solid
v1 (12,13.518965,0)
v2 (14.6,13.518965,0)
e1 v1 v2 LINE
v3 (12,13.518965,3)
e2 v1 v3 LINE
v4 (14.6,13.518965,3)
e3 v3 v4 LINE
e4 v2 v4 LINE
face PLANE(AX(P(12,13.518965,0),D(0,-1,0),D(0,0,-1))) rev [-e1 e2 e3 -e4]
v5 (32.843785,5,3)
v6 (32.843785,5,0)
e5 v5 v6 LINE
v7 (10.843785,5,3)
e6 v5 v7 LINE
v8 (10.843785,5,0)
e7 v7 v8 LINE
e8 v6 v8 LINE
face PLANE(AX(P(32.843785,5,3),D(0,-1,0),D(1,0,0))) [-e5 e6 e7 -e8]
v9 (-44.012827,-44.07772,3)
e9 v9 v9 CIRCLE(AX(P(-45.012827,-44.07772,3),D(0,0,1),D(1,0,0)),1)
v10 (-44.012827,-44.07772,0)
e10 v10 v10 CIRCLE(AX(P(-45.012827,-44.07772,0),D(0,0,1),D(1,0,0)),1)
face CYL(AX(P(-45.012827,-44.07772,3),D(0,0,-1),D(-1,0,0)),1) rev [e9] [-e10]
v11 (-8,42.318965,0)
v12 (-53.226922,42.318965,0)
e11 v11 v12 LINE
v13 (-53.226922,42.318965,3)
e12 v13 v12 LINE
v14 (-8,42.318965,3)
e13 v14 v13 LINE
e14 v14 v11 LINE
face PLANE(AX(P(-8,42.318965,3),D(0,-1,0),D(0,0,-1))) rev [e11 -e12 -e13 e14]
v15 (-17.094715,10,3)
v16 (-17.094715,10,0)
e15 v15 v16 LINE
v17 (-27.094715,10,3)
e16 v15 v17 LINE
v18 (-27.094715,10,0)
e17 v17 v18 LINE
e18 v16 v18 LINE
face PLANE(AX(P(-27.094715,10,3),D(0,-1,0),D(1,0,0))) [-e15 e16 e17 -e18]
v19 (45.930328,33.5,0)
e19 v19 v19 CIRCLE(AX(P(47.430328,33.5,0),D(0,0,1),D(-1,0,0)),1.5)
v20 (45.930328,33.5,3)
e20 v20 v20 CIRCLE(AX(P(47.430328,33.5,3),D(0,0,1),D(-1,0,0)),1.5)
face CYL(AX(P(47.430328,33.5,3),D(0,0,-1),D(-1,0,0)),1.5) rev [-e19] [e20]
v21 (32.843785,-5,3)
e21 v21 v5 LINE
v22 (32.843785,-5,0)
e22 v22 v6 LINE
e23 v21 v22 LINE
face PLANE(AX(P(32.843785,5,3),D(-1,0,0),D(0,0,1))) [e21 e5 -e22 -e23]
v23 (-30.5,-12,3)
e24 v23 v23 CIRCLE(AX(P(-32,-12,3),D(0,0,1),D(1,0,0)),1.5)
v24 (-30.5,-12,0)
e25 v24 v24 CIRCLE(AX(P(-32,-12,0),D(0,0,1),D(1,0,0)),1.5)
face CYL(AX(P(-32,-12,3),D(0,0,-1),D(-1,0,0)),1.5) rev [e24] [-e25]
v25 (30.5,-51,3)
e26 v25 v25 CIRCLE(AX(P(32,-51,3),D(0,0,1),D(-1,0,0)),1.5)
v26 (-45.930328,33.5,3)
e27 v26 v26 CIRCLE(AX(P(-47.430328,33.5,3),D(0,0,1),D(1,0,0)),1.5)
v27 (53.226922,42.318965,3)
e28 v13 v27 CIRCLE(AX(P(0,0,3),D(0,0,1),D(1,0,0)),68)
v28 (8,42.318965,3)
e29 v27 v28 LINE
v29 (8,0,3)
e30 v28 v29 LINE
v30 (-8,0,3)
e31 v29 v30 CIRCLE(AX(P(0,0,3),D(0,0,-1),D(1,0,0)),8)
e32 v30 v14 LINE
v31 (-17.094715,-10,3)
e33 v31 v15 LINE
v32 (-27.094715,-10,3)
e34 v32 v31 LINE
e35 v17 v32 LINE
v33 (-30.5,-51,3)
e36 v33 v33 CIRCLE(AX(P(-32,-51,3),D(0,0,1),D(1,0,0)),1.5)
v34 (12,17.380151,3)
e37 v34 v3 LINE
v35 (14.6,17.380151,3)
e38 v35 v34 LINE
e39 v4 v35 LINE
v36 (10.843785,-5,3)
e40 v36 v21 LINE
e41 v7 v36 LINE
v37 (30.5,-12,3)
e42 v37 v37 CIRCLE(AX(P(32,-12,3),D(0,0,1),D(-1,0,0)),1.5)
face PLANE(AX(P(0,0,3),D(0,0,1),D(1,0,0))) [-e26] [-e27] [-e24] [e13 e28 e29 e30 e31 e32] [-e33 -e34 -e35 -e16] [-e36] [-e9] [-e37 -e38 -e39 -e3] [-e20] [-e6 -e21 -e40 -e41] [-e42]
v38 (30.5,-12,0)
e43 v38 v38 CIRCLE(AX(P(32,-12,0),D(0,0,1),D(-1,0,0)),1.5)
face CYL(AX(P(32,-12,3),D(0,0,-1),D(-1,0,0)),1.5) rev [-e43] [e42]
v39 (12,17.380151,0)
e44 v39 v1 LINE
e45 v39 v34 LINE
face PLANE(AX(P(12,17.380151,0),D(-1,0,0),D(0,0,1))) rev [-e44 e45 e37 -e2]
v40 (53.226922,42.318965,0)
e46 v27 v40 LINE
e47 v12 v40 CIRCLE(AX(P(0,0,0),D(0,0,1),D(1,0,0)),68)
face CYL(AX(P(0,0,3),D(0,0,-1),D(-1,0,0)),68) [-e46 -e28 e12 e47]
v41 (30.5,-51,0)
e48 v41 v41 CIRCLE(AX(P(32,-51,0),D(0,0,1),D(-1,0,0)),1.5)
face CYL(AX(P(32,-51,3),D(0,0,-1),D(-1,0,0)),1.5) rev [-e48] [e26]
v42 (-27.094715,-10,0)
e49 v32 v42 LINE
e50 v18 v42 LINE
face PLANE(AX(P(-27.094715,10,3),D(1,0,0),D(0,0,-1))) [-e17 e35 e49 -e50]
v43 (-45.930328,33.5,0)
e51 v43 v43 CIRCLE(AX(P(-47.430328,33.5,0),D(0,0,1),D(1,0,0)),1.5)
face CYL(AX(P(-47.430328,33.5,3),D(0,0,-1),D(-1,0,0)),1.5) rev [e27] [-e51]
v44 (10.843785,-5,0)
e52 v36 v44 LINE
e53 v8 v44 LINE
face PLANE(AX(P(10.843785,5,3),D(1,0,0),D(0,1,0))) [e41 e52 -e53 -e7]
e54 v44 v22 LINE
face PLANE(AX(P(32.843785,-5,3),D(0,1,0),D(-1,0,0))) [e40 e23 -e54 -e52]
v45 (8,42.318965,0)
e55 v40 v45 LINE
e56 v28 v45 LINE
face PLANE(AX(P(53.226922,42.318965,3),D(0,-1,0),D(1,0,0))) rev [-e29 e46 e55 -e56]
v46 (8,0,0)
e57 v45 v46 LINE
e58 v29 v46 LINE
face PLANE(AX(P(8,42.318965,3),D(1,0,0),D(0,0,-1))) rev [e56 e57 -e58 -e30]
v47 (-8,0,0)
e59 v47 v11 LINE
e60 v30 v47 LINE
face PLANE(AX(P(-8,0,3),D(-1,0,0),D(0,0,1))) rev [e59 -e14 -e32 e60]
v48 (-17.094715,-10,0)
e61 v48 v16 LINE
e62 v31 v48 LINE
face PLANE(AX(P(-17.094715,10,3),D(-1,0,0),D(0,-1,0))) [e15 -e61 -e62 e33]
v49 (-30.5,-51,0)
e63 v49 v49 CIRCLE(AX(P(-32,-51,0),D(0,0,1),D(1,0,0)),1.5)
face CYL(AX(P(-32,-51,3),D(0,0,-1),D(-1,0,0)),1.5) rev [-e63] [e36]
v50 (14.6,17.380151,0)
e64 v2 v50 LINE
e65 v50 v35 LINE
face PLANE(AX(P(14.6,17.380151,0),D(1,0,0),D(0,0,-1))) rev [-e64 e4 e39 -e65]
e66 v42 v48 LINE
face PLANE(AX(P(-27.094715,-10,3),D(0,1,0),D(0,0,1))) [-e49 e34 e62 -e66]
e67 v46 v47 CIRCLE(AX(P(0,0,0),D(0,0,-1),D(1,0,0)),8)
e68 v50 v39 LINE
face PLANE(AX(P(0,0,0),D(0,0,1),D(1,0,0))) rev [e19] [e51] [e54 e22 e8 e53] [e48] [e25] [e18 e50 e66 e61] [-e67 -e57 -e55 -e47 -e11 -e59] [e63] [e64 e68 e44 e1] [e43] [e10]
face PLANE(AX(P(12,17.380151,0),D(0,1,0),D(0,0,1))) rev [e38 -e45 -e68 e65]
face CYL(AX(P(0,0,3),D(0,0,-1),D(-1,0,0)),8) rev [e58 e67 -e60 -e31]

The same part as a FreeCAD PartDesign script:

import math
import FreeCAD as App
import Part
import Sketcher
Q = App.Units.Quantity

doc = App.newDocument("Part")
body = doc.addObject("PartDesign::Body", "Body")

sketch1 = body.newObject("Sketcher::SketchObject", "Sketch")
sketch1.AttachmentSupport = (doc.getObject("XY_Plane"), [""])
sketch1.MapMode = "FlatFace"
sketch1.addGeometry([
    Part.LineSegment(App.Vector(53.226922, 42.318965, 0), App.Vector(8, 42.318965, 0)),
    Part.LineSegment(App.Vector(8, 42.318965, 0), App.Vector(8, 0, 0)),
    Part.ArcOfCircle(Part.Circle(App.Vector(0, 0, 0), App.Vector(0, 0, 1), 8), math.radians(180), math.radians(360)),
    Part.LineSegment(App.Vector(-8, 0, 0), App.Vector(-8, 42.318965, 0)),
    Part.LineSegment(App.Vector(-8, 42.318965, 0), App.Vector(-53.226922, 42.318965, 0)),
    Part.ArcOfCircle(Part.Circle(App.Vector(0, 0, 0), App.Vector(0, 0, 1), 68), math.radians(141.512951), math.radians(398.487049)),
    Part.Circle(App.Vector(-45.012827, -44.07772, 0), App.Vector(0, 0, 1), 1),
    Part.Circle(App.Vector(-32, -51, 0), App.Vector(0, 0, 1), 1.5),
    Part.Circle(App.Vector(-32, -12, 0), App.Vector(0, 0, 1), 1.5),
    Part.Circle(App.Vector(32, -51, 0), App.Vector(0, 0, 1), 1.5),
    Part.Circle(App.Vector(32, -12, 0), App.Vector(0, 0, 1), 1.5),
    Part.LineSegment(App.Vector(-17.094715, -10, 0), App.Vector(-27.094715, -10, 0)),
    Part.LineSegment(App.Vector(-27.094715, -10, 0), App.Vector(-27.094715, 10, 0)),
    Part.LineSegment(App.Vector(-27.094715, 10, 0), App.Vector(-17.094715, 10, 0)),
    Part.LineSegment(App.Vector(-17.094715, 10, 0), App.Vector(-17.094715, -10, 0)),
    Part.Circle(App.Vector(-47.430328, 33.5, 0), App.Vector(0, 0, 1), 1.5),
    Part.LineSegment(App.Vector(32.843785, -5, 0), App.Vector(10.843785, -5, 0)),
    Part.LineSegment(App.Vector(10.843785, -5, 0), App.Vector(10.843785, 5, 0)),
    Part.LineSegment(App.Vector(10.843785, 5, 0), App.Vector(32.843785, 5, 0)),
    Part.LineSegment(App.Vector(32.843785, 5, 0), App.Vector(32.843785, -5, 0)),
    Part.Circle(App.Vector(47.430328, 33.5, 0), App.Vector(0, 0, 1), 1.5),
], False)
sketch1.addConstraint([
    Sketcher.Constraint("Coincident", 0, 2, 1, 1),
    Sketcher.Constraint("Tangent", 1, 2, 2, 2),
    Sketcher.Constraint("Tangent", 2, 1, 3, 1),
    Sketcher.Constraint("Coincident", 3, 2, 4, 1),
    Sketcher.Constraint("Coincident", 4, 2, 5, 1),
    Sketcher.Constraint("Coincident", 5, 2, 0, 1),
    Sketcher.Constraint("Coincident", 11, 2, 12, 1),
    Sketcher.Constraint("Coincident", 12, 2, 13, 1),
    Sketcher.Constraint("Coincident", 13, 2, 14, 1),
    Sketcher.Constraint("Coincident", 14, 2, 11, 1),
    Sketcher.Constraint("Coincident", 16, 2, 17, 1),
    Sketcher.Constraint("Coincident", 17, 2, 18, 1),
    Sketcher.Constraint("Coincident", 18, 2, 19, 1),
    Sketcher.Constraint("Coincident", 19, 2, 16, 1),
    Sketcher.Constraint("Horizontal", 0),
    Sketcher.Constraint("Vertical", 1),
    Sketcher.Constraint("Vertical", 3),
    Sketcher.Constraint("Horizontal", 4),
    Sketcher.Constraint("Horizontal", 11),
    Sketcher.Constraint("Vertical", 12),
    Sketcher.Constraint("Horizontal", 13),
    Sketcher.Constraint("Vertical", 14),
    Sketcher.Constraint("Horizontal", 16),
    Sketcher.Constraint("Vertical", 17),
    Sketcher.Constraint("Horizontal", 18),
    Sketcher.Constraint("Vertical", 19),
    Sketcher.Constraint("Coincident", 2, 3, -1, 1),
    Sketcher.Constraint("Coincident", 5, 3, -1, 1),
    Sketcher.Constraint("Equal", 7, 8),
    Sketcher.Constraint("Equal", 8, 9),
    Sketcher.Constraint("Equal", 9, 10),
    Sketcher.Constraint("Equal", 10, 15),
    Sketcher.Constraint("Equal", 15, 20),
    Sketcher.Constraint("Symmetric", 7, 3, 9, 3, -2),
    Sketcher.Constraint("Symmetric", 8, 3, 10, 3, -2),
    Sketcher.Constraint("Symmetric", 15, 3, 20, 3, -2),
    Sketcher.Constraint("Horizontal", 0, 2, 3, 2),
    Sketcher.Constraint("Vertical", 7, 3, 8, 3),
    Sketcher.Constraint("Equal", 13, 17),
    Sketcher.Constraint("Diameter", 6, Q("2 mm")),
    Sketcher.Constraint("Diameter", 7, Q("3 mm")),
    Sketcher.Constraint("Radius", 2, Q("8 mm")),
    Sketcher.Constraint("Radius", 5, Q("68 mm")),
    Sketcher.Constraint("DistanceX", 11, 2, 11, 1, Q("10 mm")),
    Sketcher.Constraint("DistanceX", 16, 2, 16, 1, Q("22 mm")),
    Sketcher.Constraint("DistanceY", 12, 1, 12, 2, Q("20 mm")),
    Sketcher.Constraint("DistanceX", 7, 3, -1, 1, Q("32 mm")),
    Sketcher.Constraint("DistanceY", 7, 3, -1, 1, Q("51 mm")),
    Sketcher.Constraint("DistanceY", 8, 3, -1, 1, Q("12 mm")),
    Sketcher.Constraint("DistanceY", 11, 2, -1, 1, Q("10 mm")),
    Sketcher.Constraint("DistanceY", 16, 2, -1, 1, Q("5 mm")),
    Sketcher.Constraint("DistanceY", -1, 1, 15, 3, Q("33.5 mm")),
    Sketcher.Constraint("DistanceX", 0, 2, 0, 1, Q("45.226922 mm")),
    Sketcher.Constraint("DistanceX", 15, 3, 6, 3, Q("2.417501 mm")),
    Sketcher.Constraint("DistanceY", 6, 3, -1, 1, Q("44.07772 mm")),
    Sketcher.Constraint("DistanceX", 15, 3, -1, 1, Q("47.430328 mm")),
    Sketcher.Constraint("DistanceX", 11, 2, -1, 1, Q("27.094715 mm")),
    Sketcher.Constraint("DistanceX", -1, 1, 16, 2, Q("10.843785 mm")),
])
pad1 = body.newObject("PartDesign::Pad", "Pad")
pad1.Profile = sketch1
pad1.Length = 3

sketch2 = body.newObject("Sketcher::SketchObject", "Sketch001")
sketch2.AttachmentSupport = (doc.getObject("XY_Plane"), [""])
sketch2.MapMode = "FlatFace"
sketch2.AttachmentOffset = App.Placement(App.Vector(0, 0, 3), App.Rotation())
sketch2.addGeometry([
    Part.LineSegment(App.Vector(12, 17.380151, 0), App.Vector(12, 13.518965, 0)),
    Part.LineSegment(App.Vector(12, 13.518965, 0), App.Vector(14.6, 13.518965, 0)),
    Part.LineSegment(App.Vector(14.6, 13.518965, 0), App.Vector(14.6, 17.380151, 0)),
    Part.LineSegment(App.Vector(14.6, 17.380151, 0), App.Vector(12, 17.380151, 0)),
], False)
sketch2.addConstraint([
    Sketcher.Constraint("Coincident", 0, 2, 1, 1),
    Sketcher.Constraint("Coincident", 1, 2, 2, 1),
    Sketcher.Constraint("Coincident", 2, 2, 3, 1),
    Sketcher.Constraint("Coincident", 3, 2, 0, 1),
    Sketcher.Constraint("Vertical", 0),
    Sketcher.Constraint("Horizontal", 1),
    Sketcher.Constraint("Vertical", 2),
    Sketcher.Constraint("Horizontal", 3),
    Sketcher.Constraint("DistanceX", 1, 1, 1, 2, Q("2.6 mm")),
    Sketcher.Constraint("DistanceX", -1, 1, 0, 2, Q("12 mm")),
    Sketcher.Constraint("DistanceY", 0, 2, 0, 1, Q("3.861186 mm")),
    Sketcher.Constraint("DistanceY", -1, 1, 2, 2, Q("17.380151 mm")),
])
pocket1 = body.newObject("PartDesign::Pocket", "Pocket")
pocket1.Profile = sketch2
pocket1.Length = 3

doc.recompute()
